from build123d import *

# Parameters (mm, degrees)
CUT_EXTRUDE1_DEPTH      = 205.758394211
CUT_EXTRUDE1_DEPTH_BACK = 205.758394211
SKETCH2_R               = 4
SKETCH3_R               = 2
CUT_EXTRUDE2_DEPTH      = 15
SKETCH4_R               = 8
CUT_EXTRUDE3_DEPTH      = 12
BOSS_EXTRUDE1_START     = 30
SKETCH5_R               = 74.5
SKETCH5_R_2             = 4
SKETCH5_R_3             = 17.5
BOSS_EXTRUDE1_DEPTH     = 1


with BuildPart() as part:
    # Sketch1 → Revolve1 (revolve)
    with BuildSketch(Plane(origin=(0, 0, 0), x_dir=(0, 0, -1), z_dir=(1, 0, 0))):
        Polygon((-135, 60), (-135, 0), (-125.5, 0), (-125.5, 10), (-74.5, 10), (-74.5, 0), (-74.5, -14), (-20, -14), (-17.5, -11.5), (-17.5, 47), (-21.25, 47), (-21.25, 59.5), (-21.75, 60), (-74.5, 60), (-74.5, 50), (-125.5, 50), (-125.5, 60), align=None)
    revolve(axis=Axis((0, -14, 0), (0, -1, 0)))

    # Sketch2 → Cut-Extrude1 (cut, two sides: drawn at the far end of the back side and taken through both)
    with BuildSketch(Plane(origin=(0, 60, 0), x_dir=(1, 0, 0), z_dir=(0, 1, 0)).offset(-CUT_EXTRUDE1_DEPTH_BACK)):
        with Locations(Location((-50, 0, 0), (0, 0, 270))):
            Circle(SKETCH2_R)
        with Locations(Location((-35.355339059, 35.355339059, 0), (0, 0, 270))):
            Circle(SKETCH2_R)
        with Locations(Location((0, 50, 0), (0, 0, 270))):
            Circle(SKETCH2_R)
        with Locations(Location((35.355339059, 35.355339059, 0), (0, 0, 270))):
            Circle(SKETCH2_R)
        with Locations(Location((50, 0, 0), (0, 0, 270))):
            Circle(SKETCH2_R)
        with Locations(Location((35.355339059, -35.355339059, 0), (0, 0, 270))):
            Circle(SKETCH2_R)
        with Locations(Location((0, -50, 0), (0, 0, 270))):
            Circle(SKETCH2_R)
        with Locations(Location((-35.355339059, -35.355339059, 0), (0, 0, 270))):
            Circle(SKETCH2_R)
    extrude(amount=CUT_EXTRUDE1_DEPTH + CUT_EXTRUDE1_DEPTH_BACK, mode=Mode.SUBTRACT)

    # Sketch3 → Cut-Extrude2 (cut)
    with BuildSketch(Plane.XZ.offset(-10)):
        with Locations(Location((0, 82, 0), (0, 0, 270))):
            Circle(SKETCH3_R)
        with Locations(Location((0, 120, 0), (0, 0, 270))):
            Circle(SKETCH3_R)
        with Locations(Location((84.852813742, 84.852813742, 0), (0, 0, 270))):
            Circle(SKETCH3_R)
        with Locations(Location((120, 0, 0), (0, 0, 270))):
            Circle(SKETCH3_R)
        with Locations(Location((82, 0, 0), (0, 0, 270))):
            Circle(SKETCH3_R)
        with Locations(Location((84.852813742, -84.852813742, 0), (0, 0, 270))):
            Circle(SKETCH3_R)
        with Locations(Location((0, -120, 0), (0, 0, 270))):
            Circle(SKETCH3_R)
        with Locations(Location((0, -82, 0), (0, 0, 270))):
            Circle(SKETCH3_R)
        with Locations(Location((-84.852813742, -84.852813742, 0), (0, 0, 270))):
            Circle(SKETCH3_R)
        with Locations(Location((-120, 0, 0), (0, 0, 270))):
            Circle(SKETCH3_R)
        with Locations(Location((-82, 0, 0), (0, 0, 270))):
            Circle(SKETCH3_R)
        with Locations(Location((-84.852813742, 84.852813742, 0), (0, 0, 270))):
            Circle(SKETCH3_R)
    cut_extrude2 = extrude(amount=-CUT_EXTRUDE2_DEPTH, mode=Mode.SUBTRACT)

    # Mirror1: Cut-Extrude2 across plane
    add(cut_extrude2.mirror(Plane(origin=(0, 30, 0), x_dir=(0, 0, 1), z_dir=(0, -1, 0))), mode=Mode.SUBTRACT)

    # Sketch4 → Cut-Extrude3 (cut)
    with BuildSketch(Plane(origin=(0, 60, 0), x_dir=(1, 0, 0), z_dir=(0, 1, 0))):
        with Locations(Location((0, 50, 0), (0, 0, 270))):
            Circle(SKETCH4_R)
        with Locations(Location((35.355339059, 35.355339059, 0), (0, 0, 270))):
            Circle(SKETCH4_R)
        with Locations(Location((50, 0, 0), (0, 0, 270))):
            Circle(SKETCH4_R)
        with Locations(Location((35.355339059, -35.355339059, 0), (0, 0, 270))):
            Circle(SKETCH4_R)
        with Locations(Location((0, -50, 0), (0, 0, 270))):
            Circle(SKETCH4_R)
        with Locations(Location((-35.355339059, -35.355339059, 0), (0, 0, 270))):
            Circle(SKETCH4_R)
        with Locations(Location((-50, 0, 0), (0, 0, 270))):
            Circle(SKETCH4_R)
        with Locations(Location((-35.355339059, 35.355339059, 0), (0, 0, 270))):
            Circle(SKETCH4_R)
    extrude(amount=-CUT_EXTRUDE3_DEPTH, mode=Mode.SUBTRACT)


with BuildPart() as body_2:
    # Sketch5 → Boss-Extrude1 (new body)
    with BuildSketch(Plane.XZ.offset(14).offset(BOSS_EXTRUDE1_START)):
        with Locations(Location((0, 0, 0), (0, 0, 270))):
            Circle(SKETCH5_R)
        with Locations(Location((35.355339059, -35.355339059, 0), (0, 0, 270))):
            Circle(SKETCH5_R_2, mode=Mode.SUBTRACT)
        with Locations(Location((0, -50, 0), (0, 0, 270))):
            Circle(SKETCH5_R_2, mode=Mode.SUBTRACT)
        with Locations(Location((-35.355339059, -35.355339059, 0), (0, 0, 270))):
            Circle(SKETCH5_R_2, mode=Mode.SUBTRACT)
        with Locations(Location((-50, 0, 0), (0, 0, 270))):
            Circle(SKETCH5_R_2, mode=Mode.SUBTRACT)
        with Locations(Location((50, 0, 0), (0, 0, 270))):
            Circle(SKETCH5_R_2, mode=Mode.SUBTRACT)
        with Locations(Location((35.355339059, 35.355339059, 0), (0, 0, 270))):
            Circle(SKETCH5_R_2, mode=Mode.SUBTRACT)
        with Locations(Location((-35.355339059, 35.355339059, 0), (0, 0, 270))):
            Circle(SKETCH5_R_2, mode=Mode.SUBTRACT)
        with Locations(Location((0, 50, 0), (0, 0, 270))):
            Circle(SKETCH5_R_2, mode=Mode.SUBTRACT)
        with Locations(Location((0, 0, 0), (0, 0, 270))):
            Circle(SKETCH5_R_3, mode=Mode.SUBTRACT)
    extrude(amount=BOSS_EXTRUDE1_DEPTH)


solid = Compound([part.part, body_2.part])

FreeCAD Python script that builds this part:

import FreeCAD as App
import Part
import Sketcher
Q = App.Units.Quantity

doc = App.newDocument("Part")
params = doc.addObject("Spreadsheet::Sheet", "Params")
for row, (alias, value) in enumerate([
    ("sketch1_width", "60 mm"),
    ("sketch1_width2", "10 mm"),
    ("sketch1_width3", "24 mm"),
    ("sketch1_height", "51 mm"),
    ("sketch1_width4", "58.5 mm"),
    ("revolution_angle", "360 deg"),
    ("sketch2_diameter", "8 mm"),
    ("sketch3_diameter", "4 mm"),
    ("pocket2_length", "15 mm"),
    ("sketch4_diameter", "16 mm"),
    ("pocket3_length", "12 mm"),
    ("sketch5_diameter", "149 mm"),
    ("sketch5_diameter2", "8 mm"),
    ("sketch5_diameter3", "35 mm"),
    ("pad1_length", "1 mm"),
], start=1):
    params.set(f"A{row}", alias)
    params.set(f"B{row}", "=" + value)
    params.setAlias(f"B{row}", alias)

body = doc.addObject("PartDesign::Body", "Body")

# Sketch on YZ plane
sketch1 = body.newObject("Sketcher::SketchObject", "Sketch")
sketch1.AttachmentSupport = (doc.getObject("YZ_Plane"), [""])
sketch1.MapMode = "FlatFace"
sketch1.addGeometry([
    Part.LineSegment(App.Vector(60, 135, 0), App.Vector(0, 135, 0)),  # 0
    Part.LineSegment(App.Vector(0, 135, 0), App.Vector(0, 125.5, 0)),  # 1
    Part.LineSegment(App.Vector(0, 125.5, 0), App.Vector(10, 125.5, 0)),  # 2
    Part.LineSegment(App.Vector(10, 125.5, 0), App.Vector(10, 74.5, 0)),  # 3
    Part.LineSegment(App.Vector(10, 74.5, 0), App.Vector(-14, 74.5, 0)),  # 4
    Part.LineSegment(App.Vector(-14, 74.5, 0), App.Vector(-14, 20, 0)),  # 5
    Part.LineSegment(App.Vector(-14, 20, 0), App.Vector(-11.5, 17.5, 0)),  # 6
    Part.LineSegment(App.Vector(-11.5, 17.5, 0), App.Vector(47, 17.5, 0)),  # 7
    Part.LineSegment(App.Vector(47, 17.5, 0), App.Vector(47, 21.2, 0)),  # 8
    Part.LineSegment(App.Vector(47, 21.2, 0), App.Vector(59.5, 21.2, 0)),  # 9
    Part.LineSegment(App.Vector(59.5, 21.2, 0), App.Vector(60, 21.8, 0)),  # 10
    Part.LineSegment(App.Vector(60, 21.8, 0), App.Vector(60, 74.5, 0)),  # 11
    Part.LineSegment(App.Vector(60, 74.5, 0), App.Vector(50, 74.5, 0)),  # 12
    Part.LineSegment(App.Vector(50, 74.5, 0), App.Vector(50, 125.5, 0)),  # 13
    Part.LineSegment(App.Vector(50, 125.5, 0), App.Vector(60, 125.5, 0)),  # 14
    Part.LineSegment(App.Vector(60, 125.5, 0), App.Vector(60, 135, 0)),  # 15
], False)
sketch1.addConstraint([
    Sketcher.Constraint("Coincident", 0, 2, 1, 1),
    Sketcher.Constraint("Coincident", 1, 2, 2, 1),
    Sketcher.Constraint("Coincident", 2, 2, 3, 1),
    Sketcher.Constraint("Coincident", 3, 2, 4, 1),
    Sketcher.Constraint("Coincident", 4, 2, 5, 1),
    Sketcher.Constraint("Coincident", 5, 2, 6, 1),
    Sketcher.Constraint("Coincident", 6, 2, 7, 1),
    Sketcher.Constraint("Coincident", 7, 2, 8, 1),
    Sketcher.Constraint("Coincident", 8, 2, 9, 1),
    Sketcher.Constraint("Coincident", 9, 2, 10, 1),
    Sketcher.Constraint("Coincident", 10, 2, 11, 1),
    Sketcher.Constraint("Coincident", 11, 2, 12, 1),
    Sketcher.Constraint("Coincident", 12, 2, 13, 1),
    Sketcher.Constraint("Coincident", 13, 2, 14, 1),
    Sketcher.Constraint("Coincident", 14, 2, 15, 1),
    Sketcher.Constraint("Coincident", 15, 2, 0, 1),
    Sketcher.Constraint("Horizontal", 0),
    Sketcher.Constraint("Vertical", 1),
    Sketcher.Constraint("Horizontal", 2),
    Sketcher.Constraint("Vertical", 3),
    Sketcher.Constraint("Horizontal", 4),
    Sketcher.Constraint("Vertical", 5),
    Sketcher.Constraint("Horizontal", 7),
    Sketcher.Constraint("Vertical", 8),
    Sketcher.Constraint("Horizontal", 9),
    Sketcher.Constraint("Vertical", 11),
    Sketcher.Constraint("Horizontal", 12),
    Sketcher.Constraint("Vertical", 13),
    Sketcher.Constraint("Horizontal", 14),
    Sketcher.Constraint("Vertical", 15),
    Sketcher.Constraint("PointOnObject", 0, 2, -2),
    Sketcher.Constraint("Perpendicular", 6, 10),
    Sketcher.Constraint("Horizontal", 4, 2, 11, 2),
    Sketcher.Constraint("Horizontal", 2, 2, 13, 2),
    Sketcher.Constraint("Vertical", 11, 2, 14, 2),
    Sketcher.Constraint("Equal", 2, 12),
    Sketcher.Constraint("DistanceX", 0, 2, 0, 1, 60.0),
    Sketcher.Constraint("DistanceX", 2, 1, 2, 2, 10.0),
    Sketcher.Constraint("DistanceX", 4, 2, 4, 1, 24.0),
    Sketcher.Constraint("DistanceY", 3, 2, 3, 1, 51.0),
    Sketcher.Constraint("Angle", 6, Q("-45 deg")),
    Sketcher.Constraint("DistanceX", 7, 1, 7, 2, 58.5),
    Sketcher.Constraint("DistanceX", 9, 1, 9, 2, 12.5),
    Sketcher.Constraint("DistanceY", 1, 2, 1, 1, 9.5),
    Sketcher.Constraint("DistanceY", 5, 2, 5, 1, 54.5),
    Sketcher.Constraint("DistanceY", -1, 1, 0, 2, 135.0),
    Sketcher.Constraint("DistanceX", -1, 1, 7, 2, 47.0),
    Sketcher.Constraint("DistanceY", 8, 1, 8, 2, 3.75),
])
sketch1.setExpression("Constraints[36]", "Params.sketch1_width")
sketch1.setExpression("Constraints[37]", "Params.sketch1_width2")
sketch1.setExpression("Constraints[38]", "Params.sketch1_width3")
sketch1.setExpression("Constraints[39]", "Params.sketch1_height")
sketch1.setExpression("Constraints[41]", "Params.sketch1_width4")
revolution = body.newObject("PartDesign::Revolution", "Revolution")
revolution.Profile = sketch1
revolution.ReferenceAxis = (sketch1, ["H_Axis"])
revolution.setExpression("Angle", "Params.revolution_angle")

# Sketch on XZ plane
sketch2 = body.newObject("Sketcher::SketchObject", "Sketch001")
sketch2.AttachmentSupport = (doc.getObject("XZ_Plane"), [""])
sketch2.MapMode = "FlatFace"
sketch2.AttachmentOffset = App.Placement(App.Vector(0, 0, -60), App.Rotation())
sketch2.addGeometry([
    Part.Circle(App.Vector(-50, 0, 0), App.Vector(0, 0, 1), 4),  # 0
    Part.Circle(App.Vector(-35.4, -35.4, 0), App.Vector(0, 0, 1), 4),  # 1
    Part.Circle(App.Vector(0, -50, 0), App.Vector(0, 0, 1), 4),  # 2
    Part.Circle(App.Vector(35.4, -35.4, 0), App.Vector(0, 0, 1), 4),  # 3
    Part.Circle(App.Vector(50, 0, 0), App.Vector(0, 0, 1), 4),  # 4
    Part.Circle(App.Vector(35.4, 35.4, 0), App.Vector(0, 0, 1), 4),  # 5
    Part.Circle(App.Vector(0, 50, 0), App.Vector(0, 0, 1), 4),  # 6
    Part.Circle(App.Vector(-35.4, 35.4, 0), App.Vector(0, 0, 1), 4),  # 7
], False)
sketch2.addConstraint([
    Sketcher.Constraint("Equal", 0, 1),
    Sketcher.Constraint("Equal", 1, 2),
    Sketcher.Constraint("Equal", 2, 3),
    Sketcher.Constraint("Equal", 3, 4),
    Sketcher.Constraint("Equal", 4, 5),
    Sketcher.Constraint("Equal", 5, 6),
    Sketcher.Constraint("Equal", 6, 7),
    Sketcher.Constraint("Symmetric", 0, 3, 4, 3, -1, 1),
    Sketcher.Constraint("Symmetric", 1, 3, 5, 3, -1, 1),
    Sketcher.Constraint("Symmetric", 2, 3, 6, 3, -1, 1),
    Sketcher.Constraint("Symmetric", 3, 3, 7, 3, -1, 1),
    Sketcher.Constraint("Symmetric", 1, 3, 3, 3, -2),
    Sketcher.Constraint("PointOnObject", 0, 3, -1),
    Sketcher.Constraint("PointOnObject", 2, 3, -2),
    Sketcher.Constraint("Diameter", 0, 8.0),
    Sketcher.Constraint("DistanceX", 0, 3, -1, 1, 50.0),
    Sketcher.Constraint("DistanceY", 2, 3, -1, 1, 50.0),
    Sketcher.Constraint("DistanceX", 1, 3, -1, 1, 35.355339),
    Sketcher.Constraint("DistanceY", 1, 3, -1, 1, 35.355339),
])
sketch2.setExpression("Constraints[14]", "Params.sketch2_diameter")
pocket1 = body.newObject("PartDesign::Pocket", "Pocket")
pocket1.Profile = sketch2
pocket1.Type = "ThroughAll"
pocket1.Midplane = True

# Sketch on XZ plane
sketch3 = body.newObject("Sketcher::SketchObject", "Sketch002")
sketch3.AttachmentSupport = (doc.getObject("XZ_Plane"), [""])
sketch3.MapMode = "FlatFace"
sketch3.AttachmentOffset = App.Placement(App.Vector(0, 0, -10), App.Rotation())
sketch3.addGeometry([
    Part.Circle(App.Vector(0, 82, 0), App.Vector(0, 0, 1), 2),  # 0
    Part.Circle(App.Vector(0, 120, 0), App.Vector(0, 0, 1), 2),  # 1
    Part.Circle(App.Vector(84.9, 84.9, 0), App.Vector(0, 0, 1), 2),  # 2
    Part.Circle(App.Vector(120, 0, 0), App.Vector(0, 0, 1), 2),  # 3
    Part.Circle(App.Vector(82, 0, 0), App.Vector(0, 0, 1), 2),  # 4
    Part.Circle(App.Vector(84.9, -84.9, 0), App.Vector(0, 0, 1), 2),  # 5
    Part.Circle(App.Vector(0, -120, 0), App.Vector(0, 0, 1), 2),  # 6
    Part.Circle(App.Vector(0, -82, 0), App.Vector(0, 0, 1), 2),  # 7
    Part.Circle(App.Vector(-84.9, -84.9, 0), App.Vector(0, 0, 1), 2),  # 8
    Part.Circle(App.Vector(-120, 0, 0), App.Vector(0, 0, 1), 2),  # 9
    Part.Circle(App.Vector(-82, 0, 0), App.Vector(0, 0, 1), 2),  # 10
    Part.Circle(App.Vector(-84.9, 84.9, 0), App.Vector(0, 0, 1), 2),  # 11
], False)
sketch3.addConstraint([
    Sketcher.Constraint("Equal", 0, 1),
    Sketcher.Constraint("Equal", 1, 2),
    Sketcher.Constraint("Equal", 2, 3),
    Sketcher.Constraint("Equal", 3, 4),
    Sketcher.Constraint("Equal", 4, 5),
    Sketcher.Constraint("Equal", 5, 6),
    Sketcher.Constraint("Equal", 6, 7),
    Sketcher.Constraint("Equal", 7, 8),
    Sketcher.Constraint("Equal", 8, 9),
    Sketcher.Constraint("Equal", 9, 10),
    Sketcher.Constraint("Equal", 10, 11),
    Sketcher.Constraint("Symmetric", 1, 3, 6, 3, -1, 1),
    Sketcher.Constraint("Symmetric", 0, 3, 7, 3, -1, 1),
    Sketcher.Constraint("Symmetric", 2, 3, 8, 3, -1, 1),
    Sketcher.Constraint("Symmetric", 3, 3, 9, 3, -1, 1),
    Sketcher.Constraint("Symmetric", 4, 3, 10, 3, -1, 1),
    Sketcher.Constraint("Symmetric", 5, 3, 11, 3, -1, 1),
    Sketcher.Constraint("Symmetric", 5, 3, 8, 3, -2),
    Sketcher.Constraint("PointOnObject", 0, 3, -2),
    Sketcher.Constraint("PointOnObject", 1, 3, -2),
    Sketcher.Constraint("PointOnObject", 3, 3, -1),
    Sketcher.Constraint("PointOnObject", 4, 3, -1),
    Sketcher.Constraint("Diameter", 0, 4.0),
    Sketcher.Constraint("DistanceY", -1, 1, 0, 3, 82.0),
    Sketcher.Constraint("DistanceY", -1, 1, 1, 3, 120.0),
    Sketcher.Constraint("DistanceX", -1, 1, 3, 3, 120.0),
    Sketcher.Constraint("DistanceX", -1, 1, 4, 3, 82.0),
    Sketcher.Constraint("DistanceX", -1, 1, 2, 3, 84.852814),
    Sketcher.Constraint("DistanceY", -1, 1, 2, 3, 84.852814),
])
sketch3.setExpression("Constraints[22]", "Params.sketch3_diameter")
pocket2 = body.newObject("PartDesign::Pocket", "Pocket001")
pocket2.Profile = sketch3
pocket2.setExpression("Length", "Params.pocket2_length")
doc.recompute()

datumplane = body.newObject("PartDesign::Plane", "DatumPlane")
datumplane.AttachmentSupport = (doc.getObject("XZ_Plane"), [""])
datumplane.MapMode = "FlatFace"
datumplane.AttachmentOffset = App.Placement(App.Vector(0, 0, -30), App.Rotation())
mirrored = body.newObject("PartDesign::Mirrored", "Mirrored")
mirrored.Originals = [pocket2]
mirrored.MirrorPlane = (datumplane, [""])
body.Tip = mirrored

# Sketch on XZ plane
sketch4 = body.newObject("Sketcher::SketchObject", "Sketch003")
sketch4.AttachmentSupport = (doc.getObject("XZ_Plane"), [""])
sketch4.MapMode = "FlatFace"
sketch4.AttachmentOffset = App.Placement(App.Vector(0, 0, -60), App.Rotation())
sketch4.addGeometry([
    Part.Circle(App.Vector(0, -50, 0), App.Vector(0, 0, 1), 8),  # 0
    Part.Circle(App.Vector(35, -35, 0), App.Vector(0, 0, 1), 8),  # 1
    Part.Circle(App.Vector(50, 0, 0), App.Vector(0, 0, 1), 8),  # 2
    Part.Circle(App.Vector(35, 35, 0), App.Vector(0, 0, 1), 8),  # 3
    Part.Circle(App.Vector(0, 50, 0), App.Vector(0, 0, 1), 8),  # 4
    Part.Circle(App.Vector(-35, 35, 0), App.Vector(0, 0, 1), 8),  # 5
    Part.Circle(App.Vector(-50, 0, 0), App.Vector(0, 0, 1), 8),  # 6
    Part.Circle(App.Vector(-35, -35, 0), App.Vector(0, 0, 1), 8),  # 7
], False)
sketch4.addConstraint([
    Sketcher.Constraint("Equal", 0, 1),
    Sketcher.Constraint("Equal", 1, 2),
    Sketcher.Constraint("Equal", 2, 3),
    Sketcher.Constraint("Equal", 3, 4),
    Sketcher.Constraint("Equal", 4, 5),
    Sketcher.Constraint("Equal", 5, 6),
    Sketcher.Constraint("Equal", 6, 7),
    Sketcher.Constraint("Symmetric", 0, 3, 4, 3, -1, 1),
    Sketcher.Constraint("Symmetric", 1, 3, 5, 3, -1, 1),
    Sketcher.Constraint("Symmetric", 2, 3, 6, 3, -1, 1),
    Sketcher.Constraint("Symmetric", 3, 3, 7, 3, -1, 1),
    Sketcher.Constraint("Symmetric", 3, 3, 5, 3, -2),
    Sketcher.Constraint("PointOnObject", 0, 3, -2),
    Sketcher.Constraint("PointOnObject", 2, 3, -1),
    Sketcher.Constraint("Diameter", 0, 16.0),
    Sketcher.Constraint("DistanceY", 0, 3, -1, 1, 50.0),
    Sketcher.Constraint("DistanceX", -1, 1, 2, 3, 50.0),
    Sketcher.Constraint("DistanceX", -1, 1, 1, 3, 35.355339),
    Sketcher.Constraint("DistanceY", 1, 3, -1, 1, 35.355339),
])
sketch4.setExpression("Constraints[14]", "Params.sketch4_diameter")
pocket3 = body.newObject("PartDesign::Pocket", "Pocket002")
pocket3.Profile = sketch4
pocket3.setExpression("Length", "Params.pocket3_length")
pocket3.Reversed = True
body2 = doc.addObject("PartDesign::Body", "Body001")

# Sketch on XZ plane
sketch5 = body2.newObject("Sketcher::SketchObject", "Sketch004")
sketch5.AttachmentSupport = (doc.getObject("XZ_Plane001"), [""])
sketch5.MapMode = "FlatFace"
sketch5.AttachmentOffset = App.Placement(App.Vector(0, 0, 44), App.Rotation())
sketch5.addGeometry([
    Part.Circle(App.Vector(0, 0, 0), App.Vector(0, 0, 1), 74.5),  # 0
    Part.Circle(App.Vector(-35.4, 35.4, 0), App.Vector(0, 0, 1), 4),  # 1
    Part.Circle(App.Vector(0, 50, 0), App.Vector(0, 0, 1), 4),  # 2
    Part.Circle(App.Vector(-50, 0, 0), App.Vector(0, 0, 1), 4),  # 3
    Part.Circle(App.Vector(-35.4, -35.4, 0), App.Vector(0, 0, 1), 4),  # 4
    Part.Circle(App.Vector(35.4, 35.4, 0), App.Vector(0, 0, 1), 4),  # 5
    Part.Circle(App.Vector(50, 0, 0), App.Vector(0, 0, 1), 4),  # 6
    Part.Circle(App.Vector(0, 0, 0), App.Vector(0, 0, 1), 17.5),  # 7
    Part.Circle(App.Vector(0, -50, 0), App.Vector(0, 0, 1), 4),  # 8
    Part.Circle(App.Vector(35.4, -35.4, 0), App.Vector(0, 0, 1), 4),  # 9
], False)
sketch5.addConstraint([
    Sketcher.Constraint("Coincident", 0, 3, -1, 1),
    Sketcher.Constraint("Coincident", 7, 3, -1, 1),
    Sketcher.Constraint("Equal", 1, 2),
    Sketcher.Constraint("Equal", 2, 3),
    Sketcher.Constraint("Equal", 3, 4),
    Sketcher.Constraint("Equal", 4, 5),
    Sketcher.Constraint("Equal", 5, 6),
    Sketcher.Constraint("Equal", 6, 8),
    Sketcher.Constraint("Equal", 8, 9),
    Sketcher.Constraint("Symmetric", 4, 3, 5, 3, -1, 1),
    Sketcher.Constraint("Symmetric", 3, 3, 6, 3, -1, 1),
    Sketcher.Constraint("Symmetric", 2, 3, 8, 3, -1, 1),
    Sketcher.Constraint("Symmetric", 1, 3, 9, 3, -1, 1),
    Sketcher.Constraint("Symmetric", 1, 3, 5, 3, -2),
    Sketcher.Constraint("PointOnObject", 2, 3, -2),
    Sketcher.Constraint("PointOnObject", 3, 3, -1),
    Sketcher.Constraint("Diameter", 0, 149.0),
    Sketcher.Constraint("Diameter", 1, 8.0),
    Sketcher.Constraint("Diameter", 7, 35.0),
    Sketcher.Constraint("DistanceY", -1, 1, 2, 3, 50.0),
    Sketcher.Constraint("DistanceX", 3, 3, -1, 1, 50.0),
    Sketcher.Constraint("DistanceX", 1, 3, -1, 1, 35.355339),
    Sketcher.Constraint("DistanceY", -1, 1, 1, 3, 35.355339),
])
sketch5.setExpression("Constraints[16]", "Params.sketch5_diameter")
sketch5.setExpression("Constraints[17]", "Params.sketch5_diameter2")
sketch5.setExpression("Constraints[18]", "Params.sketch5_diameter3")
pad1 = body2.newObject("PartDesign::Pad", "Pad")
pad1.Profile = sketch5
pad1.setExpression("Length", "Params.pad1_length")

doc.recompute()
